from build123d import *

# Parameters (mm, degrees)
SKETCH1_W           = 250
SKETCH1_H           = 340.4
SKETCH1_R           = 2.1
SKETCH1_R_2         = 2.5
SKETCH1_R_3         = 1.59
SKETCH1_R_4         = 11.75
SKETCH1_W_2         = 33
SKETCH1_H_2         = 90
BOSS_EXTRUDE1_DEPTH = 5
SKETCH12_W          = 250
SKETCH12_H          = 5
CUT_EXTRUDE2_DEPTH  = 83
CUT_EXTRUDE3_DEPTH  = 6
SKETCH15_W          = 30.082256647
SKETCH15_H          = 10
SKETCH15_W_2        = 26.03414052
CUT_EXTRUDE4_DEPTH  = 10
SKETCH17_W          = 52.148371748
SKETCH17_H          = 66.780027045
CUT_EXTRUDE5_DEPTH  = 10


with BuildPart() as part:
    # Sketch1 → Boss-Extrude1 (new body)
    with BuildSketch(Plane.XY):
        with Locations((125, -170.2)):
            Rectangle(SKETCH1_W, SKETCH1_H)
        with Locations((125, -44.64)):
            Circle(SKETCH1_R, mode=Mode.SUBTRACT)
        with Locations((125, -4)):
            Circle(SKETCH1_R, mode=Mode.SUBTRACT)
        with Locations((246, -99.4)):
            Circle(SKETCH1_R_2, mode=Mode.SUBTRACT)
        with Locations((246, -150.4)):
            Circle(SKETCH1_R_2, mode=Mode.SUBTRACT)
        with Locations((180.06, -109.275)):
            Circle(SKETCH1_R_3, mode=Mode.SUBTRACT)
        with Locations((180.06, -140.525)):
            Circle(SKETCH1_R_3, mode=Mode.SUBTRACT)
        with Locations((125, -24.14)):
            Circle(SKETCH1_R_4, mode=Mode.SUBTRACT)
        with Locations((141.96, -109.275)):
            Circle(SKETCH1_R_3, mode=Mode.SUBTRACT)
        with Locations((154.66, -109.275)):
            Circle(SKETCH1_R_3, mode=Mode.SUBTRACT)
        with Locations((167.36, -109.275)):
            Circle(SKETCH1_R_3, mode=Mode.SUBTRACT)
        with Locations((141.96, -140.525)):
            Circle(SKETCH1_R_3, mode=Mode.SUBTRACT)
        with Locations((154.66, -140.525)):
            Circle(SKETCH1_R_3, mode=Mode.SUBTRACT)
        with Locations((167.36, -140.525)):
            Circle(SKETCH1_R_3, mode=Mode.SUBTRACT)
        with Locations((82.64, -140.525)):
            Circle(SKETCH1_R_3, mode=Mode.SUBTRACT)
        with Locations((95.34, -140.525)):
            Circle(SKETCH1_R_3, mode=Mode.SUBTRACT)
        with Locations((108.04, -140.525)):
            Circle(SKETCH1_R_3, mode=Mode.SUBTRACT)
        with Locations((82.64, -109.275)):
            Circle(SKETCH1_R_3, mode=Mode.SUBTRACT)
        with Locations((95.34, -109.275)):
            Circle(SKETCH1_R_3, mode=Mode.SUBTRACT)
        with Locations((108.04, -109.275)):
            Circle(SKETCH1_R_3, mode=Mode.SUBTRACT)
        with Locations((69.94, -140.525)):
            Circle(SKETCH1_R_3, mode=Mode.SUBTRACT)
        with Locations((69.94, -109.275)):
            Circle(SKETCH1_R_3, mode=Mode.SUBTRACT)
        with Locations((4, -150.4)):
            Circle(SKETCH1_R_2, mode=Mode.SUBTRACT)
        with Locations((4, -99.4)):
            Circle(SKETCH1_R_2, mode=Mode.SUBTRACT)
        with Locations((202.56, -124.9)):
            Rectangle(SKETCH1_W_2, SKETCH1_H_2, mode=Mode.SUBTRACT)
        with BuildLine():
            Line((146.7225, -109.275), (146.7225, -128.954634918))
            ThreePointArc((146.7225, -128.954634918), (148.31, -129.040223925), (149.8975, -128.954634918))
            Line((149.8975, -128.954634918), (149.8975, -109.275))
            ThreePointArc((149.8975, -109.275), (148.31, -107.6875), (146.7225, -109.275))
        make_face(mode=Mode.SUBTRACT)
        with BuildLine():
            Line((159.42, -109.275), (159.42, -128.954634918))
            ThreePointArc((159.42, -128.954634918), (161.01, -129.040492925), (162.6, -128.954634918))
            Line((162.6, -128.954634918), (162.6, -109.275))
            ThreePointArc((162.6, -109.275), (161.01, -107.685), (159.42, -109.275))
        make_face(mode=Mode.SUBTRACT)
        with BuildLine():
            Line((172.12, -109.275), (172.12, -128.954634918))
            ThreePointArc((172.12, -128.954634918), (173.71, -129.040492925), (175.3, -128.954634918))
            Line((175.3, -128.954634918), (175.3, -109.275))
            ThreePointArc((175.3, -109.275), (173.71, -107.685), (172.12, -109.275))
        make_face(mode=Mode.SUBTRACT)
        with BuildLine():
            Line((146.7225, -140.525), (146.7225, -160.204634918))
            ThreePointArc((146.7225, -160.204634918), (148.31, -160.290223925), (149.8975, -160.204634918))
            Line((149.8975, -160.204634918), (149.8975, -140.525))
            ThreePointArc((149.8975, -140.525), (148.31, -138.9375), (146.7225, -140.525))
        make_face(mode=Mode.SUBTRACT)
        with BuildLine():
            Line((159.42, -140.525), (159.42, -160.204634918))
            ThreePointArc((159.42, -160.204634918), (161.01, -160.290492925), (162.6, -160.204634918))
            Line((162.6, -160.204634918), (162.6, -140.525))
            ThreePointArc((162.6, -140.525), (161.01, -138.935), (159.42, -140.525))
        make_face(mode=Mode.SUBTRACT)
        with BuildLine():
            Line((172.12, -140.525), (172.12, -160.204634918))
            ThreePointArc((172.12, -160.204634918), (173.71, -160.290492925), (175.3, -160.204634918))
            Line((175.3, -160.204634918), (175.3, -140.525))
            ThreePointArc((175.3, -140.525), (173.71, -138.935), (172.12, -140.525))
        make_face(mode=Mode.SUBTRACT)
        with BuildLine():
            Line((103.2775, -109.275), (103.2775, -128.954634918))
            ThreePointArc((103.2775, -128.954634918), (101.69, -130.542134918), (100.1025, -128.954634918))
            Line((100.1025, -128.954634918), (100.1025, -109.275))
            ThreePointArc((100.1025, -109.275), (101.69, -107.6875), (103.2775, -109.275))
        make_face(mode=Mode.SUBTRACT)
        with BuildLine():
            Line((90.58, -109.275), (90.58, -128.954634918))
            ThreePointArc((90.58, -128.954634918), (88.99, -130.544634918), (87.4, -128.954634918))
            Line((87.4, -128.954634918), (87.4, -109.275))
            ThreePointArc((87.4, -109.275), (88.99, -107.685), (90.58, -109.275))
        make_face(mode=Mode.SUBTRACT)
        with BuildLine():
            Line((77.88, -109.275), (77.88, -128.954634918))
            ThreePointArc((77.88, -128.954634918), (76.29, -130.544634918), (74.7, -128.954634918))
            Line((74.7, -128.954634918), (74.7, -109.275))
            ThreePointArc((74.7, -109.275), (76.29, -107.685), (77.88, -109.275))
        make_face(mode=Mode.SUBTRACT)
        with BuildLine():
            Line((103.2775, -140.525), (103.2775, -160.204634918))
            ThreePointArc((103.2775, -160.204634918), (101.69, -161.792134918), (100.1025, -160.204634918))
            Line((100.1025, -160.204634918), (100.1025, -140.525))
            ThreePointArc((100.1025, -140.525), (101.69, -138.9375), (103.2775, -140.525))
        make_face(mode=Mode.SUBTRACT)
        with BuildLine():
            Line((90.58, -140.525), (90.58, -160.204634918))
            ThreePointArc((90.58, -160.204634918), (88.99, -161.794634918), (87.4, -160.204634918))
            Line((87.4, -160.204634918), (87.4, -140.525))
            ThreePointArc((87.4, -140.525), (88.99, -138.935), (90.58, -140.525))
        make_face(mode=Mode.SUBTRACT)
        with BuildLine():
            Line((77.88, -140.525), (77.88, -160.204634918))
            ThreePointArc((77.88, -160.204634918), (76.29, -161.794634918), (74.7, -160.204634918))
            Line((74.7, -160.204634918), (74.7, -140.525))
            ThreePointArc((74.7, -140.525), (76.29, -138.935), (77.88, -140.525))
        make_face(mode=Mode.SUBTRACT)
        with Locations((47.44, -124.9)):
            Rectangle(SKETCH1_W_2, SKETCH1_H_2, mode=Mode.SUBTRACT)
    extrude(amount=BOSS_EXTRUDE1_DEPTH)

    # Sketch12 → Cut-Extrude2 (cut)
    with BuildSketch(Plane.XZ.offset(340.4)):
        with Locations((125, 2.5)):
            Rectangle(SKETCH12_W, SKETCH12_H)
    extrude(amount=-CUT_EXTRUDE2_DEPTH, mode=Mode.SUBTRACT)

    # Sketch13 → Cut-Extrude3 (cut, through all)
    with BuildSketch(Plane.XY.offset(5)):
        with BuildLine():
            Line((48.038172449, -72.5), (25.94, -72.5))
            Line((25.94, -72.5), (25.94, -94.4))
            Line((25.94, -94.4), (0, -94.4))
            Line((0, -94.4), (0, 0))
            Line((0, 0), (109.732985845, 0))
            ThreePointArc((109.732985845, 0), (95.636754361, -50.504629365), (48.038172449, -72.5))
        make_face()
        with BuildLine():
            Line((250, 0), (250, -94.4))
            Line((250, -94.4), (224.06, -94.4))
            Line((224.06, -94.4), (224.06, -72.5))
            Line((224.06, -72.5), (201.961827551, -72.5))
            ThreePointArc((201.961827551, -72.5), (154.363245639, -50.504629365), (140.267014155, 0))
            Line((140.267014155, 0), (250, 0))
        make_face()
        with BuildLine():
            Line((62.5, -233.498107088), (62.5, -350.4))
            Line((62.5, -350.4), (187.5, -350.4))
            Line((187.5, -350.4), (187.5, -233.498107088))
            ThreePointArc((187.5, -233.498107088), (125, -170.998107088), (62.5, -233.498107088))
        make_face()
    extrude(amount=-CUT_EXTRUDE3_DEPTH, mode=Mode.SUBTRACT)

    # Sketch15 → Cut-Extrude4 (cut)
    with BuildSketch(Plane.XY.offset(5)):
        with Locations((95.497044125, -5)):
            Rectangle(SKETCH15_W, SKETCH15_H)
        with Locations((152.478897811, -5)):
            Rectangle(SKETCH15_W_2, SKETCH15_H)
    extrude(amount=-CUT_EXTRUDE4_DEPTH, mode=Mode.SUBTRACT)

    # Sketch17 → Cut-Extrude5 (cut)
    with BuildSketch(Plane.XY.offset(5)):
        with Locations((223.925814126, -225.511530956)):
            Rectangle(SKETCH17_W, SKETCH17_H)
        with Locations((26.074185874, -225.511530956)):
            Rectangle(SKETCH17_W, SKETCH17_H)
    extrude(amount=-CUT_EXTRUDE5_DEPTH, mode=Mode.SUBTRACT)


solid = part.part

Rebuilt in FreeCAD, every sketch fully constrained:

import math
import FreeCAD as App
import Part
import Sketcher
Q = App.Units.Quantity


def add_polygon(sketch, points):
    """Adds a closed chain of lines whose ends are joined by coincident constraints."""
    first, n = sketch.GeometryCount, len(points)
    for a, b in zip(points, points[1:] + points[:1]):
        sketch.addGeometry(Part.LineSegment(App.Vector(*a, 0), App.Vector(*b, 0)), False)
    for i in range(n):
        sketch.addConstraint(Sketcher.Constraint("Coincident", first + i, 2, first + (i + 1) % n, 1))

doc = App.newDocument("Part")
params = doc.addObject("Spreadsheet::Sheet", "Params")
for row, (alias, value) in enumerate([
    ("sketch1_diameter", "5 mm"),
    ("sketch1_diameter2", "4.2 mm"),
    ("sketch1_diameter3", "23.5 mm"),
    ("sketch1_diameter4", "3.18 mm"),
    ("sketch1_width", "250 mm"),
    ("pad1_length", "5 mm"),
    ("sketch2_width", "250 mm"),
    ("sketch2_height", "5 mm"),
    ("pocket1_length", "83 mm"),
    ("sketch3_radius", "62.5 mm"),
    ("sketch3_height", "94.4 mm"),
    ("sketch3_height2", "21.9 mm"),
    ("sketch3_width", "25.94 mm"),
    ("sketch4_height", "10 mm"),
    ("pocket3_length", "10 mm"),
    ("pocket4_length", "10 mm"),
], start=1):
    params.set(f"A{row}", alias)
    params.set(f"B{row}", "=" + value)
    params.setAlias(f"B{row}", alias)

body = doc.addObject("PartDesign::Body", "Body")

# Sketch on XY plane
sketch1 = body.newObject("Sketcher::SketchObject", "Sketch")
sketch1.AttachmentSupport = (doc.getObject("XY_Plane"), [""])
sketch1.MapMode = "FlatFace"
add_polygon(sketch1, [(0, 0), (0, -340.4), (250, -340.4), (250, 0)])  # lines 0-3
sketch1.addGeometry(Part.Circle(App.Vector(4, -150.4, 0), App.Vector(0, 0, 1), 2.5), False)  # 4
sketch1.addGeometry(Part.ArcOfCircle(Part.Circle(App.Vector(76.29, -140.525, 0), App.Vector(0, 0, 1), 1.59), math.radians(0), math.radians(180)), False)  # 5
sketch1.addGeometry(Part.LineSegment(App.Vector(77.88, -140.525, 0), App.Vector(77.88, -160.204635, 0)), False)  # 6
sketch1.addGeometry(Part.ArcOfCircle(Part.Circle(App.Vector(76.29, -160.204635, 0), App.Vector(0, 0, 1), 1.59), math.radians(180), math.radians(360)), False)  # 7
sketch1.addGeometry(Part.LineSegment(App.Vector(74.7, -160.204635, 0), App.Vector(74.7, -140.525, 0)), False)  # 8
sketch1.addGeometry(Part.ArcOfCircle(Part.Circle(App.Vector(88.99, -140.525, 0), App.Vector(0, 0, 1), 1.59), math.radians(0), math.radians(180)), False)  # 9
sketch1.addGeometry(Part.LineSegment(App.Vector(90.58, -140.525, 0), App.Vector(90.58, -160.204635, 0)), False)  # 10
sketch1.addGeometry(Part.ArcOfCircle(Part.Circle(App.Vector(88.99, -160.204635, 0), App.Vector(0, 0, 1), 1.59), math.radians(180), math.radians(360)), False)  # 11
sketch1.addGeometry(Part.LineSegment(App.Vector(87.4, -160.204635, 0), App.Vector(87.4, -140.525, 0)), False)  # 12
sketch1.addGeometry(Part.ArcOfCircle(Part.Circle(App.Vector(101.69, -140.525, 0), App.Vector(0, 0, 1), 1.5875), math.radians(0), math.radians(180)), False)  # 13
sketch1.addGeometry(Part.LineSegment(App.Vector(103.2775, -140.525, 0), App.Vector(103.2775, -160.204635, 0)), False)  # 14
sketch1.addGeometry(Part.ArcOfCircle(Part.Circle(App.Vector(101.69, -160.204635, 0), App.Vector(0, 0, 1), 1.5875), math.radians(180), math.radians(360)), False)  # 15
sketch1.addGeometry(Part.LineSegment(App.Vector(100.1025, -160.204635, 0), App.Vector(100.1025, -140.525, 0)), False)  # 16
sketch1.addGeometry(Part.Circle(App.Vector(69.94, -140.525, 0), App.Vector(0, 0, 1), 1.59), False)  # 17
sketch1.addGeometry(Part.Circle(App.Vector(82.64, -140.525, 0), App.Vector(0, 0, 1), 1.59), False)  # 18
sketch1.addGeometry(Part.Circle(App.Vector(95.34, -140.525, 0), App.Vector(0, 0, 1), 1.59), False)  # 19
sketch1.addGeometry(Part.Circle(App.Vector(108.04, -140.525, 0), App.Vector(0, 0, 1), 1.59), False)  # 20
add_polygon(sketch1, [(63.94, -169.9), (30.94, -169.9), (30.94, -79.9), (63.94, -79.9)])  # lines 21-24
sketch1.addGeometry(Part.Circle(App.Vector(4, -99.4, 0), App.Vector(0, 0, 1), 2.5), False)  # 25
sketch1.addGeometry(Part.ArcOfCircle(Part.Circle(App.Vector(76.29, -109.275, 0), App.Vector(0, 0, 1), 1.59), math.radians(0), math.radians(180)), False)  # 26
sketch1.addGeometry(Part.LineSegment(App.Vector(77.88, -109.275, 0), App.Vector(77.88, -128.954635, 0)), False)  # 27
sketch1.addGeometry(Part.ArcOfCircle(Part.Circle(App.Vector(76.29, -128.954635, 0), App.Vector(0, 0, 1), 1.59), math.radians(180), math.radians(360)), False)  # 28
sketch1.addGeometry(Part.LineSegment(App.Vector(74.7, -128.954635, 0), App.Vector(74.7, -109.275, 0)), False)  # 29
sketch1.addGeometry(Part.ArcOfCircle(Part.Circle(App.Vector(88.99, -109.275, 0), App.Vector(0, 0, 1), 1.59), math.radians(0), math.radians(180)), False)  # 30
sketch1.addGeometry(Part.LineSegment(App.Vector(90.58, -109.275, 0), App.Vector(90.58, -128.954635, 0)), False)  # 31
sketch1.addGeometry(Part.ArcOfCircle(Part.Circle(App.Vector(88.99, -128.954635, 0), App.Vector(0, 0, 1), 1.59), math.radians(180), math.radians(360)), False)  # 32
sketch1.addGeometry(Part.LineSegment(App.Vector(87.4, -128.954635, 0), App.Vector(87.4, -109.275, 0)), False)  # 33
sketch1.addGeometry(Part.Circle(App.Vector(69.94, -109.275, 0), App.Vector(0, 0, 1), 1.59), False)  # 34
sketch1.addGeometry(Part.Circle(App.Vector(82.64, -109.275, 0), App.Vector(0, 0, 1), 1.59), False)  # 35
sketch1.addGeometry(Part.ArcOfCircle(Part.Circle(App.Vector(101.69, -109.275, 0), App.Vector(0, 0, 1), 1.5875), math.radians(0), math.radians(180)), False)  # 36
sketch1.addGeometry(Part.LineSegment(App.Vector(103.2775, -109.275, 0), App.Vector(103.2775, -128.954635, 0)), False)  # 37
sketch1.addGeometry(Part.ArcOfCircle(Part.Circle(App.Vector(101.69, -128.954635, 0), App.Vector(0, 0, 1), 1.5875), math.radians(180), math.radians(360)), False)  # 38
sketch1.addGeometry(Part.LineSegment(App.Vector(100.1025, -128.954635, 0), App.Vector(100.1025, -109.275, 0)), False)  # 39
sketch1.addGeometry(Part.Circle(App.Vector(95.34, -109.275, 0), App.Vector(0, 0, 1), 1.59), False)  # 40
sketch1.addGeometry(Part.Circle(App.Vector(108.04, -109.275, 0), App.Vector(0, 0, 1), 1.59), False)  # 41
sketch1.addGeometry(Part.LineSegment(App.Vector(146.7225, -160.204635, 0), App.Vector(146.7225, -140.525, 0)), False)  # 42
sketch1.addGeometry(Part.ArcOfCircle(Part.Circle(App.Vector(148.31, -140.525, 0), App.Vector(0, 0, 1), 1.5875), math.radians(0), math.radians(180)), False)  # 43
sketch1.addGeometry(Part.LineSegment(App.Vector(149.8975, -140.525, 0), App.Vector(149.8975, -160.204635, 0)), False)  # 44
sketch1.addGeometry(Part.ArcOfCircle(Part.Circle(App.Vector(148.31, -145.525, 0), App.Vector(0, 0, 1), 14.765224), math.radians(-96.172152), math.radians(-83.827848)), False)  # 45
sketch1.addGeometry(Part.LineSegment(App.Vector(159.42, -160.204635, 0), App.Vector(159.42, -140.525, 0)), False)  # 46
sketch1.addGeometry(Part.ArcOfCircle(Part.Circle(App.Vector(161.01, -140.525, 0), App.Vector(0, 0, 1), 1.59), math.radians(0), math.radians(180)), False)  # 47
sketch1.addGeometry(Part.LineSegment(App.Vector(162.6, -140.525, 0), App.Vector(162.6, -160.204635, 0)), False)  # 48
sketch1.addGeometry(Part.ArcOfCircle(Part.Circle(App.Vector(161.01, -145.525, 0), App.Vector(0, 0, 1), 14.765493), math.radians(-96.181797), math.radians(-83.818203)), False)  # 49
sketch1.addGeometry(Part.LineSegment(App.Vector(172.12, -160.204635, 0), App.Vector(172.12, -140.525, 0)), False)  # 50
sketch1.addGeometry(Part.ArcOfCircle(Part.Circle(App.Vector(173.71, -140.525, 0), App.Vector(0, 0, 1), 1.59), math.radians(0), math.radians(180)), False)  # 51
sketch1.addGeometry(Part.LineSegment(App.Vector(175.3, -140.525, 0), App.Vector(175.3, -160.204635, 0)), False)  # 52
sketch1.addGeometry(Part.ArcOfCircle(Part.Circle(App.Vector(173.71, -145.525, 0), App.Vector(0, 0, 1), 14.765493), math.radians(-96.181797), math.radians(-83.818203)), False)  # 53
sketch1.addGeometry(Part.Circle(App.Vector(141.96, -140.525, 0), App.Vector(0, 0, 1), 1.59), False)  # 54
sketch1.addGeometry(Part.Circle(App.Vector(154.66, -140.525, 0), App.Vector(0, 0, 1), 1.59), False)  # 55
sketch1.addGeometry(Part.Circle(App.Vector(167.36, -140.525, 0), App.Vector(0, 0, 1), 1.59), False)  # 56
sketch1.addGeometry(Part.Circle(App.Vector(180.06, -140.525, 0), App.Vector(0, 0, 1), 1.59), False)  # 57
sketch1.addGeometry(Part.Circle(App.Vector(246, -150.4, 0), App.Vector(0, 0, 1), 2.5), False)  # 58
sketch1.addGeometry(Part.LineSegment(App.Vector(146.7225, -128.954635, 0), App.Vector(146.7225, -109.275, 0)), False)  # 59
sketch1.addGeometry(Part.ArcOfCircle(Part.Circle(App.Vector(148.31, -109.275, 0), App.Vector(0, 0, 1), 1.5875), math.radians(0), math.radians(180)), False)  # 60
sketch1.addGeometry(Part.LineSegment(App.Vector(149.8975, -109.275, 0), App.Vector(149.8975, -128.954635, 0)), False)  # 61
sketch1.addGeometry(Part.ArcOfCircle(Part.Circle(App.Vector(148.31, -114.275, 0), App.Vector(0, 0, 1), 14.765224), math.radians(-96.172152), math.radians(-83.827848)), False)  # 62
sketch1.addGeometry(Part.Circle(App.Vector(141.96, -109.275, 0), App.Vector(0, 0, 1), 1.59), False)  # 63
sketch1.addGeometry(Part.Circle(App.Vector(154.66, -109.275, 0), App.Vector(0, 0, 1), 1.59), False)  # 64
sketch1.addGeometry(Part.LineSegment(App.Vector(159.42, -128.954635, 0), App.Vector(159.42, -109.275, 0)), False)  # 65
sketch1.addGeometry(Part.ArcOfCircle(Part.Circle(App.Vector(161.01, -109.275, 0), App.Vector(0, 0, 1), 1.59), math.radians(0), math.radians(180)), False)  # 66
sketch1.addGeometry(Part.LineSegment(App.Vector(162.6, -109.275, 0), App.Vector(162.6, -128.954635, 0)), False)  # 67
sketch1.addGeometry(Part.ArcOfCircle(Part.Circle(App.Vector(161.01, -114.275, 0), App.Vector(0, 0, 1), 14.765493), math.radians(-96.181797), math.radians(-83.818203)), False)  # 68
sketch1.addGeometry(Part.LineSegment(App.Vector(172.12, -128.954635, 0), App.Vector(172.12, -109.275, 0)), False)  # 69
sketch1.addGeometry(Part.ArcOfCircle(Part.Circle(App.Vector(173.71, -109.275, 0), App.Vector(0, 0, 1), 1.59), math.radians(0), math.radians(180)), False)  # 70
sketch1.addGeometry(Part.LineSegment(App.Vector(175.3, -109.275, 0), App.Vector(175.3, -128.954635, 0)), False)  # 71
sketch1.addGeometry(Part.ArcOfCircle(Part.Circle(App.Vector(173.71, -114.275, 0), App.Vector(0, 0, 1), 14.765493), math.radians(-96.181797), math.radians(-83.818203)), False)  # 72
sketch1.addGeometry(Part.Circle(App.Vector(167.36, -109.275, 0), App.Vector(0, 0, 1), 1.59), False)  # 73
sketch1.addGeometry(Part.Circle(App.Vector(180.06, -109.275, 0), App.Vector(0, 0, 1), 1.59), False)  # 74
add_polygon(sketch1, [(219.06, -169.9), (186.06, -169.9), (186.06, -79.9), (219.06, -79.9)])  # lines 75-78
sketch1.addGeometry(Part.Circle(App.Vector(246, -99.4, 0), App.Vector(0, 0, 1), 2.5), False)  # 79
sketch1.addGeometry(Part.Circle(App.Vector(125, -44.64, 0), App.Vector(0, 0, 1), 2.1), False)  # 80
sketch1.addGeometry(Part.Circle(App.Vector(125, -24.14, 0), App.Vector(0, 0, 1), 11.75), False)  # 81
sketch1.addGeometry(Part.Circle(App.Vector(125, -4, 0), App.Vector(0, 0, 1), 2.1), False)  # 82
sketch1.addConstraint([
    Sketcher.Constraint("Tangent", 5, 1, 6, 1),
    Sketcher.Constraint("Tangent", 6, 2, 7, 2),
    Sketcher.Constraint("Tangent", 7, 1, 8, 1),
    Sketcher.Constraint("Tangent", 8, 2, 5, 2),
    Sketcher.Constraint("Tangent", 9, 1, 10, 1),
    Sketcher.Constraint("Tangent", 10, 2, 11, 2),
    Sketcher.Constraint("Tangent", 11, 1, 12, 1),
    Sketcher.Constraint("Tangent", 12, 2, 9, 2),
    Sketcher.Constraint("Tangent", 13, 1, 14, 1),
    Sketcher.Constraint("Tangent", 14, 2, 15, 2),
    Sketcher.Constraint("Tangent", 15, 1, 16, 1),
    Sketcher.Constraint("Tangent", 16, 2, 13, 2),
    Sketcher.Constraint("Tangent", 26, 1, 27, 1),
    Sketcher.Constraint("Tangent", 27, 2, 28, 2),
    Sketcher.Constraint("Tangent", 28, 1, 29, 1),
    Sketcher.Constraint("Tangent", 29, 2, 26, 2),
    Sketcher.Constraint("Tangent", 30, 1, 31, 1),
    Sketcher.Constraint("Tangent", 31, 2, 32, 2),
    Sketcher.Constraint("Tangent", 32, 1, 33, 1),
    Sketcher.Constraint("Tangent", 33, 2, 30, 2),
    Sketcher.Constraint("Tangent", 36, 1, 37, 1),
    Sketcher.Constraint("Tangent", 37, 2, 38, 2),
    Sketcher.Constraint("Tangent", 38, 1, 39, 1),
    Sketcher.Constraint("Tangent", 39, 2, 36, 2),
    Sketcher.Constraint("Tangent", 42, 2, 43, 2),
    Sketcher.Constraint("Tangent", 43, 1, 44, 1),
    Sketcher.Constraint("Coincident", 44, 2, 45, 2),
    Sketcher.Constraint("Coincident", 45, 1, 42, 1),
    Sketcher.Constraint("Tangent", 46, 2, 47, 2),
    Sketcher.Constraint("Tangent", 47, 1, 48, 1),
    Sketcher.Constraint("Coincident", 48, 2, 49, 2),
    Sketcher.Constraint("Coincident", 49, 1, 46, 1),
    Sketcher.Constraint("Tangent", 50, 2, 51, 2),
    Sketcher.Constraint("Tangent", 51, 1, 52, 1),
    Sketcher.Constraint("Coincident", 52, 2, 53, 2),
    Sketcher.Constraint("Coincident", 53, 1, 50, 1),
    Sketcher.Constraint("Tangent", 59, 2, 60, 2),
    Sketcher.Constraint("Tangent", 60, 1, 61, 1),
    Sketcher.Constraint("Coincident", 61, 2, 62, 2),
    Sketcher.Constraint("Coincident", 62, 1, 59, 1),
    Sketcher.Constraint("Tangent", 65, 2, 66, 2),
    Sketcher.Constraint("Tangent", 66, 1, 67, 1),
    Sketcher.Constraint("Coincident", 67, 2, 68, 2),
    Sketcher.Constraint("Coincident", 68, 1, 65, 1),
    Sketcher.Constraint("Tangent", 69, 2, 70, 2),
    Sketcher.Constraint("Tangent", 70, 1, 71, 1),
    Sketcher.Constraint("Coincident", 71, 2, 72, 2),
    Sketcher.Constraint("Coincident", 72, 1, 69, 1),
    Sketcher.Constraint("Vertical", 0),
    Sketcher.Constraint("Horizontal", 1),
    Sketcher.Constraint("Vertical", 2),
    Sketcher.Constraint("Horizontal", 3),
    Sketcher.Constraint("Vertical", 6),
    Sketcher.Constraint("Vertical", 8),
    Sketcher.Constraint("Vertical", 10),
    Sketcher.Constraint("Vertical", 12),
    Sketcher.Constraint("Vertical", 14),
    Sketcher.Constraint("Vertical", 16),
    Sketcher.Constraint("Horizontal", 21),
    Sketcher.Constraint("Vertical", 22),
    Sketcher.Constraint("Horizontal", 23),
    Sketcher.Constraint("Vertical", 24),
    Sketcher.Constraint("Vertical", 27),
    Sketcher.Constraint("Vertical", 29),
    Sketcher.Constraint("Vertical", 31),
    Sketcher.Constraint("Vertical", 33),
    Sketcher.Constraint("Vertical", 37),
    Sketcher.Constraint("Vertical", 39),
    Sketcher.Constraint("Vertical", 42),
    Sketcher.Constraint("Vertical", 44),
    Sketcher.Constraint("Vertical", 46),
    Sketcher.Constraint("Vertical", 48),
    Sketcher.Constraint("Vertical", 50),
    Sketcher.Constraint("Vertical", 52),
    Sketcher.Constraint("Vertical", 59),
    Sketcher.Constraint("Vertical", 61),
    Sketcher.Constraint("Vertical", 65),
    Sketcher.Constraint("Vertical", 67),
    Sketcher.Constraint("Vertical", 69),
    Sketcher.Constraint("Vertical", 71),
    Sketcher.Constraint("Horizontal", 75),
    Sketcher.Constraint("Vertical", 76),
    Sketcher.Constraint("Horizontal", 77),
    Sketcher.Constraint("Vertical", 78),
    Sketcher.Constraint("Coincident", 3, 2, -1, 1),
    Sketcher.Constraint("Equal", 7, 9),
    Sketcher.Constraint("Equal", 11, 17),
    Sketcher.Constraint("Equal", 17, 18),
    Sketcher.Constraint("Equal", 18, 19),
    Sketcher.Constraint("Equal", 19, 20),
    Sketcher.Constraint("Equal", 4, 25),
    Sketcher.Constraint("Equal", 20, 26),
    Sketcher.Constraint("Equal", 28, 30),
    Sketcher.Constraint("Equal", 32, 34),
    Sketcher.Constraint("Equal", 34, 35),
    Sketcher.Constraint("Equal", 15, 36),
    Sketcher.Constraint("Equal", 35, 40),
    Sketcher.Constraint("Equal", 40, 41),
    Sketcher.Constraint("Equal", 38, 43),
    Sketcher.Constraint("Equal", 41, 47),
    Sketcher.Constraint("Equal", 47, 51),
    Sketcher.Constraint("Equal", 49, 53),
    Sketcher.Constraint("Equal", 51, 54),
    Sketcher.Constraint("Equal", 54, 55),
    Sketcher.Constraint("Equal", 55, 56),
    Sketcher.Constraint("Equal", 56, 57),
    Sketcher.Constraint("Equal", 25, 58),
    Sketcher.Constraint("Equal", 43, 60),
    Sketcher.Constraint("Equal", 45, 62),
    Sketcher.Constraint("Equal", 57, 63),
    Sketcher.Constraint("Equal", 63, 64),
    Sketcher.Constraint("Equal", 64, 66),
    Sketcher.Constraint("Equal", 53, 68),
    Sketcher.Constraint("Equal", 66, 70),
    Sketcher.Constraint("Equal", 68, 72),
    Sketcher.Constraint("Equal", 70, 73),
    Sketcher.Constraint("Equal", 73, 74),
    Sketcher.Constraint("Equal", 58, 79),
    Sketcher.Constraint("Equal", 80, 82),
    Sketcher.Constraint("Horizontal", 5, 3, 9, 3),
    Sketcher.Constraint("Horizontal", 7, 3, 11, 3),
    Sketcher.Constraint("Horizontal", 9, 3, 13, 3),
    Sketcher.Constraint("Horizontal", 11, 3, 15, 3),
    Sketcher.Constraint("Horizontal", 13, 3, 17, 3),
    Sketcher.Constraint("Horizontal", 17, 3, 18, 3),
    Sketcher.Constraint("Horizontal", 18, 3, 19, 3),
    Sketcher.Constraint("Horizontal", 19, 3, 20, 3),
    Sketcher.Constraint("Horizontal", 26, 3, 30, 3),
    Sketcher.Constraint("Horizontal", 28, 3, 32, 3),
    Sketcher.Constraint("Horizontal", 30, 3, 34, 3),
    Sketcher.Constraint("Horizontal", 34, 3, 35, 3),
    Sketcher.Constraint("Horizontal", 35, 3, 36, 3),
    Sketcher.Constraint("Horizontal", 32, 3, 38, 3),
    Sketcher.Constraint("Horizontal", 36, 3, 40, 3),
    Sketcher.Constraint("Horizontal", 40, 3, 41, 3),
    Sketcher.Constraint("Horizontal", 20, 3, 43, 3),
    Sketcher.Constraint("Horizontal", 43, 3, 47, 3),
    Sketcher.Constraint("Horizontal", 45, 3, 49, 3),
    Sketcher.Constraint("Horizontal", 47, 3, 51, 3),
    Sketcher.Constraint("Horizontal", 49, 3, 53, 3),
    Sketcher.Constraint("Horizontal", 51, 3, 54, 3),
    Sketcher.Constraint("Horizontal", 54, 3, 55, 3),
    Sketcher.Constraint("Horizontal", 55, 3, 56, 3),
    Sketcher.Constraint("Horizontal", 56, 3, 57, 3),
    Sketcher.Constraint("Horizontal", 4, 3, 58, 3),
    Sketcher.Constraint("Horizontal", 41, 3, 60, 3),
    Sketcher.Constraint("Horizontal", 60, 3, 63, 3),
    Sketcher.Constraint("Horizontal", 63, 3, 64, 3),
    Sketcher.Constraint("Horizontal", 64, 3, 66, 3),
    Sketcher.Constraint("Horizontal", 62, 3, 68, 3),
    Sketcher.Constraint("Horizontal", 66, 3, 70, 3),
    Sketcher.Constraint("Horizontal", 68, 3, 72, 3),
    Sketcher.Constraint("Horizontal", 70, 3, 73, 3),
    Sketcher.Constraint("Horizontal", 73, 3, 74, 3),
    Sketcher.Constraint("Horizontal", 25, 3, 79, 3),
    Sketcher.Constraint("Horizontal", 15, 1, 44, 2),
    Sketcher.Constraint("Horizontal", 44, 2, 45, 1),
    Sketcher.Constraint("Horizontal", 45, 1, 48, 2),
    Sketcher.Constraint("Horizontal", 48, 2, 49, 1),
    Sketcher.Constraint("Horizontal", 49, 1, 52, 2),
    Sketcher.Constraint("Horizontal", 38, 1, 61, 2),
    Sketcher.Constraint("Horizontal", 61, 2, 62, 1),
    Sketcher.Constraint("Horizontal", 62, 1, 67, 2),
    Sketcher.Constraint("Horizontal", 68, 1, 71, 2),
    Sketcher.Constraint("Horizontal", 24, 2, 75, 2),
    Sketcher.Constraint("Horizontal", 23, 2, 76, 2),
    Sketcher.Constraint("Vertical", 4, 3, 25, 3),
    Sketcher.Constraint("Vertical", 7, 3, 26, 3),
    Sketcher.Constraint("Vertical", 11, 3, 30, 3),
    Sketcher.Constraint("Vertical", 17, 3, 34, 3),
    Sketcher.Constraint("Vertical", 18, 3, 35, 3),
    Sketcher.Constraint("Vertical", 15, 3, 36, 3),
    Sketcher.Constraint("Vertical", 19, 3, 40, 3),
    Sketcher.Constraint("Vertical", 20, 3, 41, 3),
    Sketcher.Constraint("Vertical", 45, 3, 60, 3),
    Sketcher.Constraint("Vertical", 54, 3, 63, 3),
    Sketcher.Constraint("Vertical", 55, 3, 64, 3),
    Sketcher.Constraint("Vertical", 49, 3, 66, 3),
    Sketcher.Constraint("Vertical", 53, 3, 70, 3),
    Sketcher.Constraint("Vertical", 56, 3, 73, 3),
    Sketcher.Constraint("Vertical", 57, 3, 74, 3),
    Sketcher.Constraint("Vertical", 58, 3, 79, 3),
    Sketcher.Constraint("Vertical", 80, 3, 81, 3),
    Sketcher.Constraint("Vertical", 81, 3, 82, 3),
    Sketcher.Constraint("Equal", 23, 75),
    Sketcher.Constraint("Equal", 16, 27),
    Sketcher.Constraint("Diameter", 4, Q("5 mm")),
    Sketcher.Constraint("Diameter", 80, Q("4.2 mm")),
    Sketcher.Constraint("Diameter", 81, Q("23.5 mm")),
    Sketcher.Constraint("Diameter", 17, Q("3.18 mm")),
    Sketcher.Constraint("DistanceX", 1, 1, 1, 2, Q("250 mm")),
    Sketcher.Constraint("DistanceX", 21, 2, 21, 1, Q("33 mm")),
    Sketcher.Constraint("DistanceY", 22, 1, 22, 2, Q("90 mm")),
    Sketcher.Constraint("DistanceY", 0, 2, 0, 1, Q("340.4 mm")),
    Sketcher.Constraint("DistanceX", -1, 1, 4, 3, Q("4 mm")),
    Sketcher.Constraint("DistanceX", -1, 1, 58, 3, Q("246 mm")),
    Sketcher.Constraint("DistanceX", -1, 1, 80, 3, Q("125 mm")),
    Sketcher.Constraint("DistanceY", 82, 3, -1, 1, Q("4 mm")),
    Sketcher.Constraint("DistanceY", 4, 3, -1, 1, Q("150.4 mm")),
    Sketcher.Constraint("DistanceY", 25, 3, -1, 1, Q("99.4 mm")),
    Sketcher.Constraint("DistanceX", -1, 1, 7, 1, Q("74.7 mm")),
    Sketcher.Constraint("DistanceX", -1, 1, 11, 1, Q("87.4 mm")),
    Sketcher.Constraint("DistanceY", 21, 2, -1, 1, Q("169.9 mm")),
    Sketcher.Constraint("DistanceX", -1, 1, 47, 1, Q("162.6 mm")),
    Sketcher.Constraint("DistanceX", -1, 1, 51, 1, Q("175.3 mm")),
    Sketcher.Constraint("Radius", 13, Q("1.5875 mm")),
    Sketcher.Constraint("DistanceX", -1, 1, 13, 3, Q("101.69 mm")),
    Sketcher.Constraint("DistanceX", -1, 1, 17, 3, Q("69.94 mm")),
    Sketcher.Constraint("DistanceX", -1, 1, 18, 3, Q("82.64 mm")),
    Sketcher.Constraint("DistanceX", -1, 1, 19, 3, Q("95.34 mm")),
    Sketcher.Constraint("DistanceX", -1, 1, 20, 3, Q("108.04 mm")),
    Sketcher.Constraint("DistanceX", -1, 1, 43, 3, Q("148.31 mm")),
    Sketcher.Constraint("DistanceX", -1, 1, 54, 3, Q("141.96 mm")),
    Sketcher.Constraint("DistanceX", -1, 1, 55, 3, Q("154.66 mm")),
    Sketcher.Constraint("DistanceX", -1, 1, 56, 3, Q("167.36 mm")),
    Sketcher.Constraint("DistanceX", -1, 1, 57, 3, Q("180.06 mm")),
    Sketcher.Constraint("DistanceY", 80, 3, -1, 1, Q("44.64 mm")),
    Sketcher.Constraint("DistanceY", 81, 3, -1, 1, Q("24.14 mm")),
    Sketcher.Constraint("DistanceX", -1, 1, 21, 2, Q("30.94 mm")),
    Sketcher.Constraint("DistanceX", -1, 1, 75, 2, Q("186.06 mm")),
    Sketcher.Constraint("DistanceY", 5, 3, -1, 1, Q("140.525 mm")),
    Sketcher.Constraint("DistanceY", 26, 3, -1, 1, Q("109.275 mm")),
    Sketcher.Constraint("DistanceY", 45, 3, -1, 1, Q("145.525 mm")),
    Sketcher.Constraint("Radius", 45, Q("14.765224 mm")),
])
sketch1.setExpression("Constraints[198]", "Params.sketch1_diameter")
sketch1.setExpression("Constraints[199]", "Params.sketch1_diameter2")
sketch1.setExpression("Constraints[200]", "Params.sketch1_diameter3")
sketch1.setExpression("Constraints[201]", "Params.sketch1_diameter4")
sketch1.setExpression("Constraints[202]", "Params.sketch1_width")
pad1 = body.newObject("PartDesign::Pad", "Pad")
pad1.Profile = sketch1
pad1.setExpression("Length", "Params.pad1_length")

# Sketch on XZ plane
sketch2 = body.newObject("Sketcher::SketchObject", "Sketch001")
sketch2.AttachmentSupport = (doc.getObject("XZ_Plane"), [""])
sketch2.MapMode = "FlatFace"
sketch2.AttachmentOffset = App.Placement(App.Vector(0, 0, 340.4), App.Rotation())
add_polygon(sketch2, [(0, 5), (0, 0), (250, 0), (250, 5)])  # lines 0-3
sketch2.addConstraint([
    Sketcher.Constraint("Vertical", 0),
    Sketcher.Constraint("Horizontal", 1),
    Sketcher.Constraint("Vertical", 2),
    Sketcher.Constraint("Horizontal", 3),
    Sketcher.Constraint("Coincident", 0, 2, -1, 1),
    Sketcher.Constraint("DistanceX", 1, 1, 1, 2, Q("250 mm")),
    Sketcher.Constraint("DistanceY", 0, 2, 0, 1, Q("5 mm")),
])
sketch2.setExpression("Constraints[9]", "Params.sketch2_width")
sketch2.setExpression("Constraints[10]", "Params.sketch2_height")
pocket1 = body.newObject("PartDesign::Pocket", "Pocket")
pocket1.Profile = sketch2
pocket1.setExpression("Length", "Params.pocket1_length")

# Sketch on XY plane
sketch3 = body.newObject("Sketcher::SketchObject", "Sketch002")
sketch3.AttachmentSupport = (doc.getObject("XY_Plane"), [""])
sketch3.MapMode = "FlatFace"
sketch3.AttachmentOffset = App.Placement(App.Vector(0, 0, 5), App.Rotation())
sketch3.addGeometry([
    Part.LineSegment(App.Vector(25.94, -72.5, 0), App.Vector(48.038172, -72.5, 0)),  # 0
    Part.ArcOfCircle(Part.Circle(App.Vector(48.038172, -10, 0), App.Vector(0, 0, 1), 62.5), math.radians(-90), math.radians(9.206896)),  # 1
    Part.LineSegment(App.Vector(109.732986, 0, 0), App.Vector(0, 0, 0)),  # 2
    Part.LineSegment(App.Vector(0, 0, 0), App.Vector(0, -94.4, 0)),  # 3
    Part.LineSegment(App.Vector(0, -94.4, 0), App.Vector(25.94, -94.4, 0)),  # 4
    Part.LineSegment(App.Vector(25.94, -94.4, 0), App.Vector(25.94, -72.5, 0)),  # 5
    Part.LineSegment(App.Vector(250, -94.4, 0), App.Vector(250, 0, 0)),  # 6
    Part.LineSegment(App.Vector(250, 0, 0), App.Vector(140.267014, 0, 0)),  # 7
    Part.ArcOfCircle(Part.Circle(App.Vector(201.961828, -10, 0), App.Vector(0, 0, 1), 62.5), math.radians(170.793104), math.radians(270)),  # 8
    Part.LineSegment(App.Vector(201.961828, -72.5, 0), App.Vector(224.06, -72.5, 0)),  # 9
    Part.LineSegment(App.Vector(224.06, -72.5, 0), App.Vector(224.06, -94.4, 0)),  # 10
    Part.LineSegment(App.Vector(224.06, -94.4, 0), App.Vector(250, -94.4, 0)),  # 11
    Part.LineSegment(App.Vector(62.5, -233.498107, 0), App.Vector(62.5, -350.4, 0)),  # 12
    Part.LineSegment(App.Vector(62.5, -350.4, 0), App.Vector(187.5, -350.4, 0)),  # 13
    Part.LineSegment(App.Vector(187.5, -350.4, 0), App.Vector(187.5, -233.498107, 0)),  # 14
    Part.ArcOfCircle(Part.Circle(App.Vector(125, -233.498107, 0), App.Vector(0, 0, 1), 62.5), math.radians(0), math.radians(180)),  # 15
], False)
sketch3.addConstraint([
    Sketcher.Constraint("Tangent", 0, 2, 1, 1),
    Sketcher.Constraint("Coincident", 1, 2, 2, 1),
    Sketcher.Constraint("Coincident", 2, 2, 3, 1),
    Sketcher.Constraint("Coincident", 3, 2, 4, 1),
    Sketcher.Constraint("Coincident", 4, 2, 5, 1),
    Sketcher.Constraint("Coincident", 5, 2, 0, 1),
    Sketcher.Constraint("Coincident", 6, 2, 7, 1),
    Sketcher.Constraint("Coincident", 7, 2, 8, 1),
    Sketcher.Constraint("Tangent", 8, 2, 9, 1),
    Sketcher.Constraint("Coincident", 9, 2, 10, 1),
    Sketcher.Constraint("Coincident", 10, 2, 11, 1),
    Sketcher.Constraint("Coincident", 11, 2, 6, 1),
    Sketcher.Constraint("Coincident", 12, 2, 13, 1),
    Sketcher.Constraint("Coincident", 13, 2, 14, 1),
    Sketcher.Constraint("Tangent", 14, 2, 15, 1),
    Sketcher.Constraint("Tangent", 15, 2, 12, 1),
    Sketcher.Constraint("Horizontal", 0),
    Sketcher.Constraint("Horizontal", 2),
    Sketcher.Constraint("Vertical", 3),
    Sketcher.Constraint("Horizontal", 4),
    Sketcher.Constraint("Vertical", 5),
    Sketcher.Constraint("Vertical", 6),
    Sketcher.Constraint("Horizontal", 7),
    Sketcher.Constraint("Horizontal", 9),
    Sketcher.Constraint("Vertical", 10),
    Sketcher.Constraint("Horizontal", 11),
    Sketcher.Constraint("Vertical", 12),
    Sketcher.Constraint("Horizontal", 13),
    Sketcher.Constraint("Vertical", 14),
    Sketcher.Constraint("Coincident", 2, 2, -1, 1),
    Sketcher.Constraint("Equal", 1, 8),
    Sketcher.Constraint("Equal", 8, 15),
    Sketcher.Constraint("PointOnObject", 6, 2, -1),
    Sketcher.Constraint("Horizontal", 1, 3, 8, 3),
    Sketcher.Constraint("Horizontal", 4, 2, 10, 2),
    Sketcher.Constraint("Equal", 2, 7),
    Sketcher.Constraint("Equal", 0, 9),
    Sketcher.Constraint("Radius", 1, Q("62.5 mm")),
    Sketcher.Constraint("DistanceY", 3, 2, 3, 1, Q("94.4 mm")),
    Sketcher.Constraint("DistanceY", 5, 1, 5, 2, Q("21.9 mm")),
    Sketcher.Constraint("DistanceX", -1, 1, 15, 3, Q("125 mm")),
    Sketcher.Constraint("DistanceX", -1, 1, 6, 2, Q("250 mm")),
    Sketcher.Constraint("DistanceY", 12, 2, 4, 2, Q("256 mm")),
    Sketcher.Constraint("DistanceX", 4, 1, 4, 2, Q("25.94 mm")),
    Sketcher.Constraint("DistanceX", 0, 1, 0, 2, Q("22.098172 mm")),
    Sketcher.Constraint("DistanceY", 12, 2, 12, 1, Q("116.901893 mm")),
])
sketch3.setExpression("Constraints[37]", "Params.sketch3_radius")
sketch3.setExpression("Constraints[38]", "Params.sketch3_height")
sketch3.setExpression("Constraints[39]", "Params.sketch3_height2")
sketch3.setExpression("Constraints[43]", "Params.sketch3_width")
pocket2 = body.newObject("PartDesign::Pocket", "Pocket001")
pocket2.Profile = sketch3
pocket2.Type = "ThroughAll"

# Sketch on XY plane
sketch4 = body.newObject("Sketcher::SketchObject", "Sketch003")
sketch4.AttachmentSupport = (doc.getObject("XY_Plane"), [""])
sketch4.MapMode = "FlatFace"
sketch4.AttachmentOffset = App.Placement(App.Vector(0, 0, 5), App.Rotation())
add_polygon(sketch4, [(80.455916, 0), (80.455916, -10), (110.538172, -10), (110.538172, 0)])  # lines 0-3
add_polygon(sketch4, [(139.461828, 0), (139.461828, -10), (165.495968, -10), (165.495968, 0)])  # lines 4-7
sketch4.addConstraint([
    Sketcher.Constraint("Vertical", 0),
    Sketcher.Constraint("Horizontal", 1),
    Sketcher.Constraint("Vertical", 2),
    Sketcher.Constraint("Horizontal", 3),
    Sketcher.Constraint("Vertical", 4),
    Sketcher.Constraint("Horizontal", 5),
    Sketcher.Constraint("Vertical", 6),
    Sketcher.Constraint("Horizontal", 7),
    Sketcher.Constraint("PointOnObject", 2, 2, -1),
    Sketcher.Constraint("PointOnObject", 6, 2, -1),
    Sketcher.Constraint("Horizontal", 1, 2, 4, 2),
    Sketcher.Constraint("DistanceY", 0, 2, 0, 1, Q("10 mm")),
    Sketcher.Constraint("DistanceX", 5, 1, 5, 2, Q("26.034141 mm")),
    Sketcher.Constraint("DistanceX", 1, 1, 1, 2, Q("30.082257 mm")),
    Sketcher.Constraint("DistanceX", -1, 1, 5, 2, Q("165.495968 mm")),
    Sketcher.Constraint("DistanceX", 0, 2, 4, 2, Q("59.005912 mm")),
])
sketch4.setExpression("Constraints[19]", "Params.sketch4_height")
pocket3 = body.newObject("PartDesign::Pocket", "Pocket002")
pocket3.Profile = sketch4
pocket3.setExpression("Length", "Params.pocket3_length")

# Sketch on XY plane
sketch5 = body.newObject("Sketcher::SketchObject", "Sketch004")
sketch5.AttachmentSupport = (doc.getObject("XY_Plane"), [""])
sketch5.MapMode = "FlatFace"
sketch5.AttachmentOffset = App.Placement(App.Vector(0, 0, 5), App.Rotation())
add_polygon(sketch5, [(197.851628, -192.121517), (197.851628, -258.901544), (250, -258.901544), (250, -192.121517)])  # lines 0-3
add_polygon(sketch5, [(0, -192.121517), (0, -258.901544), (52.148372, -258.901544), (52.148372, -192.121517)])  # lines 4-7
sketch5.addConstraint([
    Sketcher.Constraint("Vertical", 0),
    Sketcher.Constraint("Horizontal", 1),
    Sketcher.Constraint("Vertical", 2),
    Sketcher.Constraint("Horizontal", 3),
    Sketcher.Constraint("Vertical", 4),
    Sketcher.Constraint("Horizontal", 5),
    Sketcher.Constraint("Vertical", 6),
    Sketcher.Constraint("Horizontal", 7),
    Sketcher.Constraint("PointOnObject", 4, 2, -2),
    Sketcher.Constraint("Horizontal", 1, 2, 4, 2),
    Sketcher.Constraint("Horizontal", 3, 2, 6, 2),
    Sketcher.Constraint("Equal", 3, 5),
    Sketcher.Constraint("DistanceX", -1, 1, 1, 2, Q("250 mm")),
    Sketcher.Constraint("DistanceX", 1, 1, 1, 2, Q("52.148372 mm")),
    Sketcher.Constraint("DistanceY", 0, 2, 0, 1, Q("66.780027 mm")),
    Sketcher.Constraint("DistanceY", 0, 2, -1, 1, Q("258.901544 mm")),
])
pocket4 = body.newObject("PartDesign::Pocket", "Pocket003")
pocket4.Profile = sketch5
pocket4.setExpression("Length", "Params.pocket4_length")

doc.recompute()
